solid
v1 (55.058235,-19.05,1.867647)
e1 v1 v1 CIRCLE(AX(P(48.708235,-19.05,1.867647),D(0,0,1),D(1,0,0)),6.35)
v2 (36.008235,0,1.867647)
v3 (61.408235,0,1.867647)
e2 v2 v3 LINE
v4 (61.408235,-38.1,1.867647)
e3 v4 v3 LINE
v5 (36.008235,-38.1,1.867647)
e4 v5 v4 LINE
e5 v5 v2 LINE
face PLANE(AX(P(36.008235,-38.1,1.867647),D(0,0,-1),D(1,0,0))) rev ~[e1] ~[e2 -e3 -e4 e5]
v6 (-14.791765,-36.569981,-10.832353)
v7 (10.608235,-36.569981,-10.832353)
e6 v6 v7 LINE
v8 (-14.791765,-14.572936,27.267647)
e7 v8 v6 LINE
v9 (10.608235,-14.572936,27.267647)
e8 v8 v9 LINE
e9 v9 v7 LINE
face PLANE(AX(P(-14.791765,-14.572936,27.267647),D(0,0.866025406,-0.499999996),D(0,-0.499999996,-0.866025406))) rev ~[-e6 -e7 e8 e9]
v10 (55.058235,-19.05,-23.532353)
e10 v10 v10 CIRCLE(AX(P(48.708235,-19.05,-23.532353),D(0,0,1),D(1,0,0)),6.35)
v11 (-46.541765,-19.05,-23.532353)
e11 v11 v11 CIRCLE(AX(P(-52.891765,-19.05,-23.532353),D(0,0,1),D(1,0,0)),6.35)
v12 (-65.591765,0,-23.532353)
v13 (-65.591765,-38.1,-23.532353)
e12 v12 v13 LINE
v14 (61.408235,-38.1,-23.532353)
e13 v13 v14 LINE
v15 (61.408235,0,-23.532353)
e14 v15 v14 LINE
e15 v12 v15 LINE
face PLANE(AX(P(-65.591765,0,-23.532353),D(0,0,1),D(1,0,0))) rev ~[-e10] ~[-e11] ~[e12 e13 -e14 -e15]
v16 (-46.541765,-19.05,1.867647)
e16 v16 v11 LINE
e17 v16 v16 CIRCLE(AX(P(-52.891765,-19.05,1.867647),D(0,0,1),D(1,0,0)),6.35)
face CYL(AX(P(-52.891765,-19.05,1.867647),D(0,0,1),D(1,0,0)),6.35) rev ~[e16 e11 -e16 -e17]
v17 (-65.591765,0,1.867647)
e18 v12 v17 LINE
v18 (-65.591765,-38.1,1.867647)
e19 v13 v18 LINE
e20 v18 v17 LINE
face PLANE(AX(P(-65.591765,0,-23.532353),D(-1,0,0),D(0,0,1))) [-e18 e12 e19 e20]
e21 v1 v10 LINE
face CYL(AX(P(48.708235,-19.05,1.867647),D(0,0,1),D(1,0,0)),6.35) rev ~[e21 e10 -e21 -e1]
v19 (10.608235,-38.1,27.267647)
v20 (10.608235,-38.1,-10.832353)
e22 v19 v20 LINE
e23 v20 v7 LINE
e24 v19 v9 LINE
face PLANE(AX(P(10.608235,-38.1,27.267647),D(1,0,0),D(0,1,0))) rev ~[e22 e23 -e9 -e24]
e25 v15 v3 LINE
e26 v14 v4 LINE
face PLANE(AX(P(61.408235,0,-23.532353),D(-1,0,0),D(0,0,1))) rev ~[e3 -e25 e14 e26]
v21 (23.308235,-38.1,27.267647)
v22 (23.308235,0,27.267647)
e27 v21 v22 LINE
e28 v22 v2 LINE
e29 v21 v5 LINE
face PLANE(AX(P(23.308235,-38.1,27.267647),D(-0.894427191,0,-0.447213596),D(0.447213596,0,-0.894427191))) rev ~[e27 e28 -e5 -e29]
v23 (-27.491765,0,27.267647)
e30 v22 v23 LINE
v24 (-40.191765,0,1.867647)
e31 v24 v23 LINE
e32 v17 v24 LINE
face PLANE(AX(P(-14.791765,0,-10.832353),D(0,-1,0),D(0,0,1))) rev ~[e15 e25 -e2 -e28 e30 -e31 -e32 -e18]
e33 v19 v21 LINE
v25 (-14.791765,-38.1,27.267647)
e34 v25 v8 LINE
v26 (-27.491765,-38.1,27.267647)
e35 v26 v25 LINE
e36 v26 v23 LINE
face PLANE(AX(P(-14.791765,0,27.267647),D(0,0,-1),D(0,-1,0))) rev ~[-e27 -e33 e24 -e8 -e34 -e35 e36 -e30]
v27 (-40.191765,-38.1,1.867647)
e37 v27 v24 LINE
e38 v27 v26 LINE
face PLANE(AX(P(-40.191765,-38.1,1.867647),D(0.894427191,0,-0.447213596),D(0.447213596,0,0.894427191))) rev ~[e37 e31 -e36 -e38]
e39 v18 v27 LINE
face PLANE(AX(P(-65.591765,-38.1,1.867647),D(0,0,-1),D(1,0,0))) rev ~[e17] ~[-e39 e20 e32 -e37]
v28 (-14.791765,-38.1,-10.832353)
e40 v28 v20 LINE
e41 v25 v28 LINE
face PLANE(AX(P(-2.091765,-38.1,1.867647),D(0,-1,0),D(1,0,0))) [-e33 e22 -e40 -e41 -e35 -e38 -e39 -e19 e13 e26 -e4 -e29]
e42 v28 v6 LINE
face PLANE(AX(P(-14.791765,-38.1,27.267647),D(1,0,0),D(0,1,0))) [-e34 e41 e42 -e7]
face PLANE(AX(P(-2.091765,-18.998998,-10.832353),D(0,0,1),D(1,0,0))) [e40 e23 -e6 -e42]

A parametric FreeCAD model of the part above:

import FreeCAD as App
import Part
import Sketcher
Q = App.Units.Quantity


def add_polygon(sketch, points):
    """Adds a closed chain of lines whose ends are joined by coincident constraints."""
    first, n = sketch.GeometryCount, len(points)
    for a, b in zip(points, points[1:] + points[:1]):
        sketch.addGeometry(Part.LineSegment(App.Vector(*a, 0), App.Vector(*b, 0)), False)
    for i in range(n):
        sketch.addConstraint(Sketcher.Constraint("Coincident", first + i, 2, first + (i + 1) % n, 1))

doc = App.newDocument("Part")
body = doc.addObject("PartDesign::Body", "Body")

sketch1 = body.newObject("Sketcher::SketchObject", "Sketch")
sketch1.AttachmentSupport = (doc.getObject("XZ_Plane"), [""])
sketch1.MapMode = "FlatFace"
add_polygon(sketch1, [(-66, 27), (-66, -24), (61, -24), (61, 27)])
sketch1.addConstraint(Sketcher.Constraint("Vertical", 0))
sketch1.addConstraint(Sketcher.Constraint("Horizontal", 1))
sketch1.addConstraint(Sketcher.Constraint("Vertical", 2))
sketch1.addConstraint(Sketcher.Constraint("Horizontal", 3))
sketch1.addConstraint(Sketcher.Constraint("DistanceX", 1, 1, 1, 2, Q("5 in")))
sketch1.addConstraint(Sketcher.Constraint("DistanceY", 0, 2, 0, 1, Q("2 in")))
sketch1.addConstraint(Sketcher.Constraint("DistanceX", 0, 2, -1, 1, 65.591765))
sketch1.addConstraint(Sketcher.Constraint("DistanceY", 0, 2, -1, 1, 23.532353))
pad1 = body.newObject("PartDesign::Pad", "Pad")
pad1.Profile = sketch1
pad1.Length = Q("1.5 in")

sketch2 = body.newObject("Sketcher::SketchObject", "Sketch001")
sketch2.AttachmentSupport = (doc.getObject("XZ_Plane"), [""])
sketch2.MapMode = "FlatFace"
sketch2.AttachmentOffset = App.Placement(App.Vector(0, 0, 1.5 * 25.4), App.Rotation())
add_polygon(sketch2, [(36, 2), (61, 2), (61, 27), (23, 27)])
add_polygon(sketch2, [(-66, 27), (-66, 2), (-40, 2), (-27, 27)])
sketch2.addConstraint(Sketcher.Constraint("Horizontal", 0))
sketch2.addConstraint(Sketcher.Constraint("Vertical", 1))
sketch2.addConstraint(Sketcher.Constraint("Horizontal", 2))
sketch2.addConstraint(Sketcher.Constraint("Vertical", 4))
sketch2.addConstraint(Sketcher.Constraint("Horizontal", 5))
sketch2.addConstraint(Sketcher.Constraint("Horizontal", 7))
sketch2.addConstraint(Sketcher.Constraint("Horizontal", 3, 2, 4, 2))
sketch2.addConstraint(Sketcher.Constraint("Horizontal", 2, 2, 6, 2))
sketch2.addConstraint(Sketcher.Constraint("Equal", 0, 5))
sketch2.addConstraint(Sketcher.Constraint("Equal", 2, 7))
sketch2.addConstraint(Sketcher.Constraint("Equal", 5, 1))
sketch2.addConstraint(Sketcher.Constraint("DistanceX", 0, 1, 0, 2, Q("1 in")))
sketch2.addConstraint(Sketcher.Constraint("DistanceX", 2, 2, 2, 1, Q("1.5 in")))
sketch2.addConstraint(Sketcher.Constraint("DistanceX", 4, 2, 3, 2, Q("4 in")))
sketch2.addConstraint(Sketcher.Constraint("DistanceX", -1, 1, 0, 2, 61.408235))
sketch2.addConstraint(Sketcher.Constraint("DistanceY", -1, 1, 0, 2, 1.867647))
pocket1 = body.newObject("PartDesign::Pocket", "Pocket")
pocket1.Profile = sketch2
pocket1.Length = Q("1.5 in")

sketch3 = body.newObject("Sketcher::SketchObject", "Sketch002")
sketch3.AttachmentSupport = (doc.getObject("XY_Plane"), [""])
sketch3.MapMode = "FlatFace"
sketch3.AttachmentOffset = App.Placement(App.Vector(0, 0, 1.867647), App.Rotation())
sketch3.addGeometry(Part.Circle(App.Vector(49, -19, 0), App.Vector(0, 0, 1), 6), False)
sketch3.addConstraint(Sketcher.Constraint("Diameter", 0, Q("0.5 in")))
sketch3.addConstraint(Sketcher.Constraint("DistanceY", 0, 3, -1, 1, Q("0.75 in")))
sketch3.addConstraint(Sketcher.Constraint("DistanceX", -1, 1, 0, 3, 48.708235))
pocket2 = body.newObject("PartDesign::Pocket", "Pocket001")
pocket2.Profile = sketch3
pocket2.Length = Q("1 in")

sketch4 = body.newObject("Sketcher::SketchObject", "Sketch003")
sketch4.AttachmentSupport = (doc.getObject("XY_Plane"), [""])
sketch4.MapMode = "FlatFace"
sketch4.AttachmentOffset = App.Placement(App.Vector(0, 0, 1.867647), App.Rotation())
sketch4.addGeometry(Part.Circle(App.Vector(-53, -19, 0), App.Vector(0, 0, 1), 6), False)
sketch4.addConstraint(Sketcher.Constraint("Diameter", 0, Q("0.5 in")))
sketch4.addConstraint(Sketcher.Constraint("DistanceY", 0, 3, -1, 1, Q("0.75 in")))
sketch4.addConstraint(Sketcher.Constraint("DistanceX", 0, 3, -1, 1, 52.891765))
pocket3 = body.newObject("PartDesign::Pocket", "Pocket002")
pocket3.Profile = sketch4
pocket3.Length = Q("1 in")

sketch5 = body.newObject("Sketcher::SketchObject", "Sketch004")
sketch5.AttachmentSupport = (doc.getObject("XY_Plane"), [""])
sketch5.MapMode = "FlatFace"
sketch5.AttachmentOffset = App.Placement(App.Vector(0, 0, 27.267647), App.Rotation())
add_polygon(sketch5, [(-15, 0), (-15, -38), (11, -38), (11, 0)])
sketch5.addConstraint(Sketcher.Constraint("Vertical", 0))
sketch5.addConstraint(Sketcher.Constraint("Horizontal", 1))
sketch5.addConstraint(Sketcher.Constraint("Vertical", 2))
sketch5.addConstraint(Sketcher.Constraint("Horizontal", 3))
sketch5.addConstraint(Sketcher.Constraint("DistanceX", 1, 1, 1, 2, Q("1 in")))
sketch5.addConstraint(Sketcher.Constraint("DistanceY", 0, 2, -1, 1, Q("1.5 in")))
sketch5.addConstraint(Sketcher.Constraint("DistanceY", 0, 2, 0, 1, 38.202004))
sketch5.addConstraint(Sketcher.Constraint("DistanceX", 0, 2, -1, 1, 14.791765))
pocket4 = body.newObject("PartDesign::Pocket", "Pocket003")
pocket4.Profile = sketch5
pocket4.Length = Q("1.5 in")

sketch6 = body.newObject("Sketcher::SketchObject", "Sketch005")
sketch6.AttachmentSupport = (doc.getObject("YZ_Plane"), [""])
sketch6.MapMode = "FlatFace"
sketch6.AttachmentOffset = App.Placement(App.Vector(0, 0, -14.791765), App.Rotation())
add_polygon(sketch6, [(-15, 27), (-37, -11), (0, -11), (0, 27)])
sketch6.addConstraint(Sketcher.Constraint("Horizontal", 1))
sketch6.addConstraint(Sketcher.Constraint("Vertical", 2))
sketch6.addConstraint(Sketcher.Constraint("Horizontal", 3))
sketch6.addConstraint(Sketcher.Constraint("PointOnObject", 1, 2, -2))
sketch6.addConstraint(Sketcher.Constraint("DistanceY", 2, 1, 2, 2, Q("1.5 in")))
sketch6.addConstraint(Sketcher.Constraint("Angle", 0, Q("-120 deg")))
sketch6.addConstraint(Sketcher.Constraint("DistanceX", 1, 1, 1, 2, 36.569981))
sketch6.addConstraint(Sketcher.Constraint("DistanceY", 0, 2, -1, 1, 10.832353))
pad2 = body.newObject("PartDesign::Pad", "Pad001")
pad2.Profile = sketch6
pad2.Length = Q("1 in")

doc.recompute()
